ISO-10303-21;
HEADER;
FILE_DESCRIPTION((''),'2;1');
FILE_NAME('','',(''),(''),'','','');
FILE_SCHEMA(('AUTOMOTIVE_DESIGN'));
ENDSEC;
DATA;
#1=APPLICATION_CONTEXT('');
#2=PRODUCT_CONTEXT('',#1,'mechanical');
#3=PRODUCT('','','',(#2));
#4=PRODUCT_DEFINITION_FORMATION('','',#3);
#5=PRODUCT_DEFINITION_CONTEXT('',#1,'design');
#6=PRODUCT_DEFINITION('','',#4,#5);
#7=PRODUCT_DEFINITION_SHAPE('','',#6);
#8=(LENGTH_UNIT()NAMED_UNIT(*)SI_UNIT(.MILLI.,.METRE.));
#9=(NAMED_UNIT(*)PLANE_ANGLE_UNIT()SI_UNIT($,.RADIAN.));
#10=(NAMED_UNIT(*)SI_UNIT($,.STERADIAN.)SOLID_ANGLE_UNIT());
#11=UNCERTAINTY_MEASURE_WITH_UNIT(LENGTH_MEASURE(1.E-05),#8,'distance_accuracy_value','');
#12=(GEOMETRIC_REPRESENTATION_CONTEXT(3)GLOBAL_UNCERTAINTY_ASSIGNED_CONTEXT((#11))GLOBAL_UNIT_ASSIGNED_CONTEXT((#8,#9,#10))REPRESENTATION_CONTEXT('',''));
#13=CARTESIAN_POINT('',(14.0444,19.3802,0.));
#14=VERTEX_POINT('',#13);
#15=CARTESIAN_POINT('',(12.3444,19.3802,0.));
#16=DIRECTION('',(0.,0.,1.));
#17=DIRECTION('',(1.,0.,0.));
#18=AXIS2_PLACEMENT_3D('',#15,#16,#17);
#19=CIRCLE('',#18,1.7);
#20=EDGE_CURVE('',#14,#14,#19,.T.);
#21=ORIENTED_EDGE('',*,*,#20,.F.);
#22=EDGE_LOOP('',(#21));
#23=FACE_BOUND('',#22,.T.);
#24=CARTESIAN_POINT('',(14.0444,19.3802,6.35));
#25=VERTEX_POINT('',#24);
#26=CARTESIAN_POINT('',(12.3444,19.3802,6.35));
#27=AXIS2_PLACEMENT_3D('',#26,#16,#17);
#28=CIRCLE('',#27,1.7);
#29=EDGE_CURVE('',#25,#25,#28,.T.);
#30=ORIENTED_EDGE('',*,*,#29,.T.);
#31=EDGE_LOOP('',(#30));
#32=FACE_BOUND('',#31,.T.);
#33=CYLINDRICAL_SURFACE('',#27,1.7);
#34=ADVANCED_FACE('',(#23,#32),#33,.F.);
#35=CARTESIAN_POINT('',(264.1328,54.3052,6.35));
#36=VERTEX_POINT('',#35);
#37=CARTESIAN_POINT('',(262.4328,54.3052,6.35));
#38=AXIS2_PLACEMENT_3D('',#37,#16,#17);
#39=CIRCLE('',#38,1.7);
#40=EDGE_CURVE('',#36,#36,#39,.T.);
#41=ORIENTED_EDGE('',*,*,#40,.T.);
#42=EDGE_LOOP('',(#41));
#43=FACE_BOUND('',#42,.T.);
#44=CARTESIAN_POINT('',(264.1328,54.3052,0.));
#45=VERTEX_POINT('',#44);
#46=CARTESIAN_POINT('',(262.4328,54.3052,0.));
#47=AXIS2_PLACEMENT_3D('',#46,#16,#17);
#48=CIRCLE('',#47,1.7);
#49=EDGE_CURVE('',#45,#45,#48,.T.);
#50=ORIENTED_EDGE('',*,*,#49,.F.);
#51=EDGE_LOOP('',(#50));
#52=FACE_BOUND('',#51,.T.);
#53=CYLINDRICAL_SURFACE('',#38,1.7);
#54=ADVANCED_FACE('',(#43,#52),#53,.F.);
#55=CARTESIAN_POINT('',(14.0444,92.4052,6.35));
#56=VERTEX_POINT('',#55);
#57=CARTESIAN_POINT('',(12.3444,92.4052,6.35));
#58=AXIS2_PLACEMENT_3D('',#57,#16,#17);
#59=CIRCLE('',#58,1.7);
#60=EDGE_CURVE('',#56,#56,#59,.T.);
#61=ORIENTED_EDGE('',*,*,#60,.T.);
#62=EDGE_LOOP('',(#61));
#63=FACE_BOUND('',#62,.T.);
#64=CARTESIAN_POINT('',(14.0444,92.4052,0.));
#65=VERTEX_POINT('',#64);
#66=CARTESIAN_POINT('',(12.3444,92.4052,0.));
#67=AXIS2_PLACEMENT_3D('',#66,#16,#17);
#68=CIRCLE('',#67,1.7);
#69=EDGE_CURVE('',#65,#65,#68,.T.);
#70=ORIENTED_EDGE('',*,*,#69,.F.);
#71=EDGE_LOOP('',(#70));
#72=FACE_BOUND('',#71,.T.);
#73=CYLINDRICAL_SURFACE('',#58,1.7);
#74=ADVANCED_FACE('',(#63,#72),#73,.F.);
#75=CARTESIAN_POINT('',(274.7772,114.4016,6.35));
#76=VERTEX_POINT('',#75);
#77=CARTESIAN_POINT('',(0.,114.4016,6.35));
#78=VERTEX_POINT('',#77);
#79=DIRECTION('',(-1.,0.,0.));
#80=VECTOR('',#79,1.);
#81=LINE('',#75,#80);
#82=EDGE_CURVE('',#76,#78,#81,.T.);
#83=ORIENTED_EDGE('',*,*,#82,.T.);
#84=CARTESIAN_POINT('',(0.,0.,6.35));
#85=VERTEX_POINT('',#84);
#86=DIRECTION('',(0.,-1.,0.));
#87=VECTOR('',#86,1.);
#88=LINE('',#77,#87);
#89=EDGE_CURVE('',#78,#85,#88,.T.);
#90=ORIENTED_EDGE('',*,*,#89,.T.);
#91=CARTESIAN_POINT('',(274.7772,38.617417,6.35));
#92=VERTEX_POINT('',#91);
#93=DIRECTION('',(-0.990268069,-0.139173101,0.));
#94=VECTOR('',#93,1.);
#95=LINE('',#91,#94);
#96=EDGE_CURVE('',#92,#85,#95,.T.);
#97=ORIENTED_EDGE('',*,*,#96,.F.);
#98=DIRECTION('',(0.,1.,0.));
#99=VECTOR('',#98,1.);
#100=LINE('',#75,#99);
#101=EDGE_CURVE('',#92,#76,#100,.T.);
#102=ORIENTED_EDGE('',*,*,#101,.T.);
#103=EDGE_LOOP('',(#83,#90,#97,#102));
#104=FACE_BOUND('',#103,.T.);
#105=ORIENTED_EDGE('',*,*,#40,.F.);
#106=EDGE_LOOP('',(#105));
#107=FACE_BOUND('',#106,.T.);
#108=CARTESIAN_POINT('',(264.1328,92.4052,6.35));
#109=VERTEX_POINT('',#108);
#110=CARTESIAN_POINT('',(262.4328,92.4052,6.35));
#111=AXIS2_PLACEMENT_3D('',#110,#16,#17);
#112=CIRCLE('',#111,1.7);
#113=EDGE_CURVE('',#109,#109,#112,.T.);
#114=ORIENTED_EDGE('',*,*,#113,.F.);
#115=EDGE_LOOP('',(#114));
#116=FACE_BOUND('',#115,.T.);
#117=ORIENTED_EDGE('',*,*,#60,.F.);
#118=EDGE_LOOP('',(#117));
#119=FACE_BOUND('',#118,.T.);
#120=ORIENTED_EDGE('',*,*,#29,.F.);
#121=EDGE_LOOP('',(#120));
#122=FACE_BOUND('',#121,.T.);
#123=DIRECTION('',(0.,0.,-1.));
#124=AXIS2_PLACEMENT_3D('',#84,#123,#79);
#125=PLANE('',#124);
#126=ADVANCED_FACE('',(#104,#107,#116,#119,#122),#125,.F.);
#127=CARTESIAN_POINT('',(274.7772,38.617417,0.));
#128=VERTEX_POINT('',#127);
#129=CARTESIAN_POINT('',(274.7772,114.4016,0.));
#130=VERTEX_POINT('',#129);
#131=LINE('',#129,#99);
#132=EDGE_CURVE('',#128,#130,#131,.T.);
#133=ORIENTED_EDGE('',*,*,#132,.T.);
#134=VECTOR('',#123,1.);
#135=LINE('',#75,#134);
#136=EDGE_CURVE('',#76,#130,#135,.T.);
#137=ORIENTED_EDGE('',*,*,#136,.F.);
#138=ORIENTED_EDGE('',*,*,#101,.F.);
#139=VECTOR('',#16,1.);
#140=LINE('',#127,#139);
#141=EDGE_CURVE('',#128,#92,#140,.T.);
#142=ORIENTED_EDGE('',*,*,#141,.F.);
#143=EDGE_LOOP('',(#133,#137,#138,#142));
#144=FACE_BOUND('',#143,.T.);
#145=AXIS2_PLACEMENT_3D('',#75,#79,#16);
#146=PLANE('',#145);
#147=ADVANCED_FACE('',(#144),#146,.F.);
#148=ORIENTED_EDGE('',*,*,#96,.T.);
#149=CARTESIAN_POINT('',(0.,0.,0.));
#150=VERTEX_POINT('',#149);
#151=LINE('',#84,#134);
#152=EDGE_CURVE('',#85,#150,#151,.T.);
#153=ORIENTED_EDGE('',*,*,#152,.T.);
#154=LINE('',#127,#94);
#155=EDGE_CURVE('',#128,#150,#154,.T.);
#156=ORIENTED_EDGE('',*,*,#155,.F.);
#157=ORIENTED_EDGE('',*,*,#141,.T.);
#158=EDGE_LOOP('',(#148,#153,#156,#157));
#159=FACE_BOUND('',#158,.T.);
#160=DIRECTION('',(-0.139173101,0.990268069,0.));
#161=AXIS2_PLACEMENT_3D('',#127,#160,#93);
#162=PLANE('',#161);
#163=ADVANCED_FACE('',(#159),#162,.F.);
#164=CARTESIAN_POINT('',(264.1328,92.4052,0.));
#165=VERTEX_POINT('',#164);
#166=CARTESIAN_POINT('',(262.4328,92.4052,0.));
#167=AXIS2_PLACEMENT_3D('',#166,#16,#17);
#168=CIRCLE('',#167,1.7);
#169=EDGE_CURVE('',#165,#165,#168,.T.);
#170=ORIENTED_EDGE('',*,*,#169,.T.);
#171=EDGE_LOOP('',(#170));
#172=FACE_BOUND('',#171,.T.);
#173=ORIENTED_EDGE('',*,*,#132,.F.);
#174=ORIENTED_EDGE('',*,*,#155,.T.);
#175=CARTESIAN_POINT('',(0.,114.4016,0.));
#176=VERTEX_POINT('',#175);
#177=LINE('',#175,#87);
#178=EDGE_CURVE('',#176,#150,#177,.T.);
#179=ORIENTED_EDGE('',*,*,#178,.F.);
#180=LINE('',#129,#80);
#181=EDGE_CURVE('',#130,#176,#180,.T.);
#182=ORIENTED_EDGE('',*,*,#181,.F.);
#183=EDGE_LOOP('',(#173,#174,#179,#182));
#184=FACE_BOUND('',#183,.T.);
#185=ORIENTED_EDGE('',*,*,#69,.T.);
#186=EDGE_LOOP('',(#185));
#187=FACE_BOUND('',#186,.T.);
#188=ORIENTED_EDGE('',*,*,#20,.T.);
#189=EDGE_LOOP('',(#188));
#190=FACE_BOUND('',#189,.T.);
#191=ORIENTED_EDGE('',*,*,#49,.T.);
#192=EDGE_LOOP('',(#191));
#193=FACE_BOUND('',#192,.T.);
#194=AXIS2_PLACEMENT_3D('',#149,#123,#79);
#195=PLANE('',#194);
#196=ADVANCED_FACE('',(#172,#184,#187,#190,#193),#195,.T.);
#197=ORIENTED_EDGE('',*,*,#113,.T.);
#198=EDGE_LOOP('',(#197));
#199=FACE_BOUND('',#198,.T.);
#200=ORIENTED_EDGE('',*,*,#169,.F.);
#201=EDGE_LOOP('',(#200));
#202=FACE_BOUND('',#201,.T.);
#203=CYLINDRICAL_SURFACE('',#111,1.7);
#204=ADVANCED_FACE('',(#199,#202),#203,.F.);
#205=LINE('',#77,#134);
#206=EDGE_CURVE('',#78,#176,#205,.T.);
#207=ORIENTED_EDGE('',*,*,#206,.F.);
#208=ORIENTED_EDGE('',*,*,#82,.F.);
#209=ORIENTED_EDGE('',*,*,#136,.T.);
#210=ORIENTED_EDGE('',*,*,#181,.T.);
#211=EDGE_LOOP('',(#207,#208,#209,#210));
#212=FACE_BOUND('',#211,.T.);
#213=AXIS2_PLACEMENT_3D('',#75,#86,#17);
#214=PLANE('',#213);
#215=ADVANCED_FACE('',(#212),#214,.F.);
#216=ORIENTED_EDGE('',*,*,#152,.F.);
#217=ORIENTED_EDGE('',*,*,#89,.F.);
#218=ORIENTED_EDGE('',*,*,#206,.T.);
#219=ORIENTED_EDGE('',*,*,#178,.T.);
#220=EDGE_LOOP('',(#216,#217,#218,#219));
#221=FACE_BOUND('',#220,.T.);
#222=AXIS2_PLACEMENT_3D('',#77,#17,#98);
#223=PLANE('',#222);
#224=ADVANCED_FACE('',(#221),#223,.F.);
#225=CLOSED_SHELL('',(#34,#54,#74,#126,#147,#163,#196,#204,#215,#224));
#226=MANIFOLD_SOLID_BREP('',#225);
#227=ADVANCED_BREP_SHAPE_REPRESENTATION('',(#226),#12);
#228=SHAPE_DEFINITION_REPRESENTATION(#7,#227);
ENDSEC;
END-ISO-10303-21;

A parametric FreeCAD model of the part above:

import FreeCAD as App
import Part
import Sketcher

V = App.Vector
Q = App.Units.Quantity


def add_polygon(sketch, points):
    """Adds a closed chain of lines whose ends are joined by coincident constraints."""
    first, n = sketch.GeometryCount, len(points)
    for a, b in zip(points, points[1:] + points[:1]):
        sketch.addGeometry(Part.LineSegment(App.Vector(*a, 0), App.Vector(*b, 0)), False)
    for i in range(n):
        sketch.addConstraint(Sketcher.Constraint("Coincident", first + i, 2, first + (i + 1) % n, 1))

doc = App.newDocument("Part")
body = doc.addObject("PartDesign::Body", "Body")

# Sketch on XY plane
sketch1 = body.newObject("Sketcher::SketchObject", "Sketch")
sketch1.AttachmentSupport = (doc.getObject("XY_Plane"), [""])
sketch1.MapMode = "FlatFace"
add_polygon(sketch1, [(0, 114), (0, 0), (275, 0), (275, 114)])  # lines 0-3
sketch1.addConstraint([
    Sketcher.Constraint("Vertical", 0),
    Sketcher.Constraint("Horizontal", 1),
    Sketcher.Constraint("Vertical", 2),
    Sketcher.Constraint("Horizontal", 3),
    Sketcher.Constraint("Coincident", 0, 2, -1, 1),
    Sketcher.Constraint("DistanceX", 1, 1, 1, 2, Q("10.818 in")),
    Sketcher.Constraint("DistanceY", 0, 2, 0, 1, Q("4.504 in")),
])
pad1 = body.newObject("PartDesign::Pad", "Pad")
pad1.Profile = sketch1
pad1.Length = Q("0.25 in")

# Sketch on XY plane
sketch2 = body.newObject("Sketcher::SketchObject", "Sketch001")
sketch2.AttachmentSupport = (doc.getObject("XY_Plane"), [""])
sketch2.MapMode = "FlatFace"
sketch2.AttachmentOffset = App.Placement(V(0, 0, 0.25 * 25.4), App.Rotation())
sketch2.addGeometry([
    Part.Circle(V(12.3, 92.4, 0), V(0, 0, 1), 1.7),
    Part.Circle(V(12.3, 19.4, 0), V(0, 0, 1), 1.7),
    Part.Circle(V(262.4, 54.3, 0), V(0, 0, 1), 1.7),
    Part.Circle(V(262.4, 92.4, 0), V(0, 0, 1), 1.7),
], False)
sketch2.addConstraint([
    Sketcher.Constraint("Equal", 0, 1),
    Sketcher.Constraint("Equal", 1, 2),
    Sketcher.Constraint("Equal", 2, 3),
    Sketcher.Constraint("Horizontal", 0, 3, 3, 3),
    Sketcher.Constraint("Vertical", 0, 3, 1, 3),
    Sketcher.Constraint("Vertical", 2, 3, 3, 3),
    Sketcher.Constraint("DistanceY", 2, 3, 0, 3, Q("1.5 in")),
    Sketcher.Constraint("Diameter", 0, Q("3.4 mm")),
    Sketcher.Constraint("DistanceX", -1, 1, 0, 3, Q("0.486 in")),
    Sketcher.Constraint("DistanceY", -1, 1, 0, 3, Q("3.638 in")),
    Sketcher.Constraint("DistanceY", -1, 1, 1, 3, Q("0.763 in")),
    Sketcher.Constraint("DistanceX", -1, 1, 2, 3, Q("10.332 in")),
])
doc.recompute()
hole = body.newObject("PartDesign::Hole", "Hole")
hole.Profile = sketch2
hole.ThreadType = "None"
hole.Diameter = 3.4
hole.DepthType = "ThroughAll"

# Sketch on XY plane
sketch3 = body.newObject("Sketcher::SketchObject", "Sketch002")
sketch3.AttachmentSupport = (doc.getObject("XY_Plane"), [""])
sketch3.MapMode = "FlatFace"
sketch3.AttachmentOffset = App.Placement(V(0, 0, 0.25 * 25.4), App.Rotation())
add_polygon(sketch3, [(0, 0), (275, 0), (275, 39)])  # lines 0-2
sketch3.addConstraint([
    Sketcher.Constraint("Horizontal", 0),
    Sketcher.Constraint("Vertical", 1),
    Sketcher.Constraint("Coincident", 2, 2, -1, 1),
    Sketcher.Constraint("Angle", 2, Q("-172 deg")),
    Sketcher.Constraint("DistanceX", 0, 1, 0, 2, Q("10.818 in")),
])
pocket1 = body.newObject("PartDesign::Pocket", "Pocket")
pocket1.Profile = sketch3
pocket1.Type = "ThroughAll"

doc.recompute()
